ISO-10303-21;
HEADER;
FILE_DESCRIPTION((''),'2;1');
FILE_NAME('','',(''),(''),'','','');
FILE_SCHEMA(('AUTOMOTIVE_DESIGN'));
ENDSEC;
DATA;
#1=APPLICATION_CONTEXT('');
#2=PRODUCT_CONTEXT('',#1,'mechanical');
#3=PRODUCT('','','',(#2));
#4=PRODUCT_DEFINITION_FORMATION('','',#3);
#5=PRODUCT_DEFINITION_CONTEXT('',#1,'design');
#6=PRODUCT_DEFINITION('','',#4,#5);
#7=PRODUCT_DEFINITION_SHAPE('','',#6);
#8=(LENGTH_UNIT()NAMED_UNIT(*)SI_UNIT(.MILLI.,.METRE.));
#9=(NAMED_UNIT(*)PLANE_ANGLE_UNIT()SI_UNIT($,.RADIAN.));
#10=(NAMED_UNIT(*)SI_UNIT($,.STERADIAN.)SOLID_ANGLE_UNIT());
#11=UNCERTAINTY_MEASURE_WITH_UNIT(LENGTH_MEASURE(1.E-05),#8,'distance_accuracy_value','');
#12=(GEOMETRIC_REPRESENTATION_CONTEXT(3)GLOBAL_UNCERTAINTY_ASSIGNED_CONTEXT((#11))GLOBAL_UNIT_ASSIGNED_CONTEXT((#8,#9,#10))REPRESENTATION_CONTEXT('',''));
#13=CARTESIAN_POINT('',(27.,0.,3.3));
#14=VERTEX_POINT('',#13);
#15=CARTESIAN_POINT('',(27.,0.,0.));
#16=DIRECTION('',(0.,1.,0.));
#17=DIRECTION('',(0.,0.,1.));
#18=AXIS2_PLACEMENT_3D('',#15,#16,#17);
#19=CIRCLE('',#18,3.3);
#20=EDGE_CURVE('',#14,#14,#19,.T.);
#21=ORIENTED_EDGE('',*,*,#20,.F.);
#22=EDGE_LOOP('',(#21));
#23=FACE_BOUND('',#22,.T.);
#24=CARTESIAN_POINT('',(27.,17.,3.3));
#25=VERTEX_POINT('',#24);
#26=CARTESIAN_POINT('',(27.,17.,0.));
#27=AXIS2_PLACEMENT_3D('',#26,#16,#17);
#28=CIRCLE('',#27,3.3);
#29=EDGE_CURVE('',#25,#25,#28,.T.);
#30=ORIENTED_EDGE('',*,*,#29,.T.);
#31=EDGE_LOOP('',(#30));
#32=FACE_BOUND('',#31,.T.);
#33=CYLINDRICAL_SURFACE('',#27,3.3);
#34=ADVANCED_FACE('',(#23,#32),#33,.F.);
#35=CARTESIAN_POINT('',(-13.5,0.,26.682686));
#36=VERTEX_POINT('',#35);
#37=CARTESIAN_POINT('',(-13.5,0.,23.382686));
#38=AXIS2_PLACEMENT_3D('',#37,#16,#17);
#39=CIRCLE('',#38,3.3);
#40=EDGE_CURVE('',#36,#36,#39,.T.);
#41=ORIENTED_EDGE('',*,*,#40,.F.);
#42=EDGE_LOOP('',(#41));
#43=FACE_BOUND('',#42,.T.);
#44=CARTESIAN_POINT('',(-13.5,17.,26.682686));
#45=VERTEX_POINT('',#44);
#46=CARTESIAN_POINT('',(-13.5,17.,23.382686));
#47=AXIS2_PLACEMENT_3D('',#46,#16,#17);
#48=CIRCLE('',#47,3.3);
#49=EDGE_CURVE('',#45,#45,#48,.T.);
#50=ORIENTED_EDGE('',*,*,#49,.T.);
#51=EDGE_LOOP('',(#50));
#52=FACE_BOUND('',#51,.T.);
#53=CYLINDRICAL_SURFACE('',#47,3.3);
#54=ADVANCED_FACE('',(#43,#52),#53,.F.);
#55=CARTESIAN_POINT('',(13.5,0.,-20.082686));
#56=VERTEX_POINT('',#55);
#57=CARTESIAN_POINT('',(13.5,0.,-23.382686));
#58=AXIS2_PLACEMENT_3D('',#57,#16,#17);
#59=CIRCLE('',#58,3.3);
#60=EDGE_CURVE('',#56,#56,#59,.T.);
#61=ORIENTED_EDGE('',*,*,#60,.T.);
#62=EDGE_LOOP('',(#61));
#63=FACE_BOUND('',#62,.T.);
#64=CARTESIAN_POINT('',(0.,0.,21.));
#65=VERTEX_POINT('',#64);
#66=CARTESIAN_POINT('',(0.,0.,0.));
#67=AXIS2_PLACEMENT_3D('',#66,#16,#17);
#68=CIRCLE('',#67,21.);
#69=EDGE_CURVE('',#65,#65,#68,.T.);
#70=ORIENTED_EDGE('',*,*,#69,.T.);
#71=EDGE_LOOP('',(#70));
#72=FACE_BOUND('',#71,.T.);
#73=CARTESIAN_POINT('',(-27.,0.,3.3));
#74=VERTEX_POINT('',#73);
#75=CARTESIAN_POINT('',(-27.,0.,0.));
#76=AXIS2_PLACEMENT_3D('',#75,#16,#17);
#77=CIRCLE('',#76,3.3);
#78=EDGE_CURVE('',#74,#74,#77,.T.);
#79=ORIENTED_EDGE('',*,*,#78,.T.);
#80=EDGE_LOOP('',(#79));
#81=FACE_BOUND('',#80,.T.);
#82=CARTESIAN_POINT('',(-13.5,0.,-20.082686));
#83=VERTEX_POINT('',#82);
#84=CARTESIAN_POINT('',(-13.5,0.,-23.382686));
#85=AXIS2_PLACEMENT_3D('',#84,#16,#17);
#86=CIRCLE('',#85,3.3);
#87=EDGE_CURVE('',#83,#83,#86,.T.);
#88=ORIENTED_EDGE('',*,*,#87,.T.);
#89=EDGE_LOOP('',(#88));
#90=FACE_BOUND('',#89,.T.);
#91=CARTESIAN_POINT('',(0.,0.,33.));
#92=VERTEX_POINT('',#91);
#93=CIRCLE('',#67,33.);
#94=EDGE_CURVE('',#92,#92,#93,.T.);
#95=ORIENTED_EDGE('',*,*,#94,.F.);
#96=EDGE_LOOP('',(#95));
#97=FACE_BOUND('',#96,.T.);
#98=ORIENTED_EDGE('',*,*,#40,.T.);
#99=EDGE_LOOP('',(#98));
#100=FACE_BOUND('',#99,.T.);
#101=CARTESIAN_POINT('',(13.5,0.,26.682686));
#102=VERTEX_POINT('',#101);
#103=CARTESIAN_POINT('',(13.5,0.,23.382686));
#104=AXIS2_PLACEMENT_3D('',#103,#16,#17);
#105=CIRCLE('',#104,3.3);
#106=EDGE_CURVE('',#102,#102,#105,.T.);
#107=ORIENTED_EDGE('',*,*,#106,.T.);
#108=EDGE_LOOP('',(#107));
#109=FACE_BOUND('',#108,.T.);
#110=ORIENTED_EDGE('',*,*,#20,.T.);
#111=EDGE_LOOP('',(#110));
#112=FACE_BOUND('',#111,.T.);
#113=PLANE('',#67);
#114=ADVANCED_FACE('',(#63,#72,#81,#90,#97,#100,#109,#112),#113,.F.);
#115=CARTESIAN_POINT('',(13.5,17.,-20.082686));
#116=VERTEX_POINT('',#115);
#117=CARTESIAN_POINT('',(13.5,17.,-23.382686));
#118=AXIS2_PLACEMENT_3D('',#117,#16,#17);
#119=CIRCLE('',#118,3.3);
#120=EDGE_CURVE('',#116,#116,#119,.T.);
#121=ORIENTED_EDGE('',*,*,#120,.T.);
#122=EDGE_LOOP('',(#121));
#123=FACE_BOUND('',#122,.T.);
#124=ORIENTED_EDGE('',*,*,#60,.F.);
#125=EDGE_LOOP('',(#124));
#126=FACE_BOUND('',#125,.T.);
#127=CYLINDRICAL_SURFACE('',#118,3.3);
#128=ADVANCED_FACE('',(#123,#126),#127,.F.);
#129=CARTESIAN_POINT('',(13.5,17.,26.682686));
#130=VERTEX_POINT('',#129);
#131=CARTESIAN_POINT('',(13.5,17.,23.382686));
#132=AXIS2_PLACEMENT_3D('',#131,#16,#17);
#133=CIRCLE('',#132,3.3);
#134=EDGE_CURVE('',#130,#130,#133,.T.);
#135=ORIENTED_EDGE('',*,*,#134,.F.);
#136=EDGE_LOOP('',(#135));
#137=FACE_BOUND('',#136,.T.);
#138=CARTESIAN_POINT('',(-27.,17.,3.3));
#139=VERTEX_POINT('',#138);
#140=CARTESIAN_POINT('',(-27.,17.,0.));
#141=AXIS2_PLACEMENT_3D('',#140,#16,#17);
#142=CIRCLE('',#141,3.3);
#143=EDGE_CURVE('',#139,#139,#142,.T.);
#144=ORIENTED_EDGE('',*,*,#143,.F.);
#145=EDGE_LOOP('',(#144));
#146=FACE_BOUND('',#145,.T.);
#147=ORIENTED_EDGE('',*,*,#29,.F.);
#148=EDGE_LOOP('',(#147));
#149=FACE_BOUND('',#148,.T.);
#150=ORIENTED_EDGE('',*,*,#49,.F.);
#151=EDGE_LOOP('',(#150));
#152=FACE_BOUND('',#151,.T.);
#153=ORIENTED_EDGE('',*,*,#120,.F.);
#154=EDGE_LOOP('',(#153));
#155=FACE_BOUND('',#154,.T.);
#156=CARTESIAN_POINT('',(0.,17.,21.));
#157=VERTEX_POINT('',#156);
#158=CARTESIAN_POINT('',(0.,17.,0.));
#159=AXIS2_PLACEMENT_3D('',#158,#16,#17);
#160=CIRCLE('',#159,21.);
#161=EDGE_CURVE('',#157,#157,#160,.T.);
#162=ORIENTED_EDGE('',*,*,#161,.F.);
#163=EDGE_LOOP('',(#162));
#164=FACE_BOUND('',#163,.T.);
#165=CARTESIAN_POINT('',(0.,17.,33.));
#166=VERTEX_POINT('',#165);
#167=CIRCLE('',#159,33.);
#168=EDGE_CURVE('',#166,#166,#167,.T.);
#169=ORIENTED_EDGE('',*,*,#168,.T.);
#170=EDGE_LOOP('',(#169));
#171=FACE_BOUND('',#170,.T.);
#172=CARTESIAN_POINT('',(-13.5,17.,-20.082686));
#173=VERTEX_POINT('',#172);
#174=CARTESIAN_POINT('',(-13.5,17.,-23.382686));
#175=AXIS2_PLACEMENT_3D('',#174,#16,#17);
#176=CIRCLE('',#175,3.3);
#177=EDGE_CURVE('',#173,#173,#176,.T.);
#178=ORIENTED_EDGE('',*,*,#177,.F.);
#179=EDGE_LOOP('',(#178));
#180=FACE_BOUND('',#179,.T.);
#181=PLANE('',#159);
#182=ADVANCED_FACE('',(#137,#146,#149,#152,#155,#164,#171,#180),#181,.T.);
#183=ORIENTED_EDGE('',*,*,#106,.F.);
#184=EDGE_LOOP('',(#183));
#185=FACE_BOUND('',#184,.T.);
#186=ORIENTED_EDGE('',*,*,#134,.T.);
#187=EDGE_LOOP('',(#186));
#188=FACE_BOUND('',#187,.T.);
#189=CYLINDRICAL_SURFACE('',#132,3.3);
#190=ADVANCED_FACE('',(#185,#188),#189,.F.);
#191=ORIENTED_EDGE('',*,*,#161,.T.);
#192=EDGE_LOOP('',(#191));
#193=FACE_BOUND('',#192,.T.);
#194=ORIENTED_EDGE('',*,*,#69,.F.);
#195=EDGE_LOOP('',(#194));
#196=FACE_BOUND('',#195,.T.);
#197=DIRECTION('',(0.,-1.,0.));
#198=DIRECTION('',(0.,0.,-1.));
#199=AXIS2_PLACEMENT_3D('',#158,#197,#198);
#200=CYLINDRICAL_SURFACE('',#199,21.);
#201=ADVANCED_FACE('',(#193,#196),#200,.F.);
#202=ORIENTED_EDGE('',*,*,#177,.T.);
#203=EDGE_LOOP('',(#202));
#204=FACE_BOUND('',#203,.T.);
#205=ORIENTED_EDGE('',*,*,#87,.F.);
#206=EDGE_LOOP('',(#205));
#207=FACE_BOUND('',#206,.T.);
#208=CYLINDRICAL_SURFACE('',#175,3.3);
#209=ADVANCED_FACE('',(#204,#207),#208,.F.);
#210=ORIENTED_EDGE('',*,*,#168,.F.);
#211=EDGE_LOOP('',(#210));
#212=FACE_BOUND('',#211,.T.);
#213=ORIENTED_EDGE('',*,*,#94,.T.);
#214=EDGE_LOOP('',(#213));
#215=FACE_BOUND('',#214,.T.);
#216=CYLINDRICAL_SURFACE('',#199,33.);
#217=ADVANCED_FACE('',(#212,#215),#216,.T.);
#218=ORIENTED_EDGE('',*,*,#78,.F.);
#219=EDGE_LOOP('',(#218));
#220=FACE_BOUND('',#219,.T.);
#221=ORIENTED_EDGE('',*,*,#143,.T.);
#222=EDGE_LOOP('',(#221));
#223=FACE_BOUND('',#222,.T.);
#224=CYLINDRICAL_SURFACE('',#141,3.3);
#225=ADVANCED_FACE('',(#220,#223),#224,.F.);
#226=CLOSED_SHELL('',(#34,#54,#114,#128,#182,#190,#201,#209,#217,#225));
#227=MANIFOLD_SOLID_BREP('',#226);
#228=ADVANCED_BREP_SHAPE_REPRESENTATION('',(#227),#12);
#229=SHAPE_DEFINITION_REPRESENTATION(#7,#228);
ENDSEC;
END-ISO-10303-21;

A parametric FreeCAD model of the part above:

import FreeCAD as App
import Part
import Sketcher
from FreeCAD import Vector
Q = App.Units.Quantity

doc = App.newDocument("Part")
body = doc.addObject("PartDesign::Body", "Body")

# Sketch on XZ plane
sketch1 = body.newObject("Sketcher::SketchObject", "Sketch")
sketch1.AttachmentSupport = (doc.getObject("XZ_Plane"), [""])
sketch1.MapMode = "FlatFace"
sketch1.addGeometry([
    Part.Circle(Vector(0, 0, 0), Vector(0, 0, 1), 33),
    Part.Circle(Vector(0, 0, 0), Vector(0, 0, 1), 21),
], False)
sketch1.addConstraint([
    Sketcher.Constraint("Coincident", 0, 3, -1, 1),
    Sketcher.Constraint("Coincident", 1, 3, -1, 1),
    Sketcher.Constraint("Diameter", 0, Q("66 mm")),
    Sketcher.Constraint("Diameter", 1, Q("42 mm")),
])
pad1 = body.newObject("PartDesign::Pad", "Pad")
pad1.Profile = sketch1
pad1.Length = 17
pad1.Reversed = True

# Sketch on XZ plane
sketch2 = body.newObject("Sketcher::SketchObject", "Sketch001")
sketch2.AttachmentSupport = (doc.getObject("XZ_Plane"), [""])
sketch2.MapMode = "FlatFace"
sketch2.AttachmentOffset = App.Placement(Vector(0, 0, -17), App.Rotation())
sketch2.addGeometry(Part.Circle(Vector(-27, 0, 0), Vector(0, 0, 1), 3.3), False)
sketch2.addConstraint([
    Sketcher.Constraint("PointOnObject", 0, 3, -1),
    Sketcher.Constraint("Diameter", 0, Q("6.6 mm")),
    Sketcher.Constraint("DistanceX", 0, 3, -1, 1, Q("27 mm")),
])
doc.recompute()
hole = body.newObject("PartDesign::Hole", "Hole")
hole.Profile = sketch2
hole.ThreadType = "None"
hole.Diameter = 6.6
hole.DepthType = "Dimension"
hole.Depth = 17
hole.DrillPoint = "Flat"
hole.Reversed = True
doc.recompute()

polarpattern = body.newObject("PartDesign::PolarPattern", "PolarPattern")
polarpattern.Originals = [hole]
polarpattern.Axis = (doc.getObject("Y_Axis"), [""])
polarpattern.Angle = 360
polarpattern.Occurrences = 6
body.Tip = polarpattern

doc.recompute()
